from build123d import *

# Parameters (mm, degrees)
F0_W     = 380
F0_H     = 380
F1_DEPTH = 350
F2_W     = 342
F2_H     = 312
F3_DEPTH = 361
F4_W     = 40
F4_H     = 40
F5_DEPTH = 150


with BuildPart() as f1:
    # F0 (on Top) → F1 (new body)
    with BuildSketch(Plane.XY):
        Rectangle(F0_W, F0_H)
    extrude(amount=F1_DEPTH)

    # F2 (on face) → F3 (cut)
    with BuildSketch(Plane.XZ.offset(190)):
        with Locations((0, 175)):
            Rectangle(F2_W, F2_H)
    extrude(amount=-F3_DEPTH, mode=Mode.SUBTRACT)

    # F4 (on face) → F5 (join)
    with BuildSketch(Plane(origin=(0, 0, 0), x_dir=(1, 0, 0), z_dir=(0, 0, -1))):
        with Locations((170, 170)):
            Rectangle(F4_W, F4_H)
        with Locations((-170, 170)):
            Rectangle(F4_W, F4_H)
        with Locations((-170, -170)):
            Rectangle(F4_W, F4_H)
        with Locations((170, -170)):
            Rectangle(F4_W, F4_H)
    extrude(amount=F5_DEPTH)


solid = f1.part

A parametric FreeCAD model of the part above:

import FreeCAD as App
import Part
import Sketcher
from FreeCAD import Vector
Q = App.Units.Quantity

doc = App.newDocument("Part")
body = doc.addObject("PartDesign::Body", "Body")

# Sketch on XY plane
sketch1 = doc.addObject("Sketcher::SketchObject", "Sketch")
body.addObject(sketch1)
sketch1.AttachmentSupport = (doc.XY_Plane, [""])
sketch1.MapMode = "FlatFace"
sketch1.addGeometry([
    Part.LineSegment(Vector(-190, 190, 0), Vector(-190, -190, 0)),
    Part.LineSegment(Vector(-190, -190, 0), Vector(190, -190, 0)),
    Part.LineSegment(Vector(190, -190, 0), Vector(190, 190, 0)),
    Part.LineSegment(Vector(190, 190, 0), Vector(-190, 190, 0)),
], False)
sketch1.addConstraint([
    Sketcher.Constraint("Coincident", 0, 2, 1, 1),
    Sketcher.Constraint("Coincident", 1, 2, 2, 1),
    Sketcher.Constraint("Coincident", 2, 2, 3, 1),
    Sketcher.Constraint("Coincident", 3, 2, 0, 1),
    Sketcher.Constraint("Vertical", 0),
    Sketcher.Constraint("Horizontal", 1),
    Sketcher.Constraint("Vertical", 2),
    Sketcher.Constraint("Horizontal", 3),
    Sketcher.Constraint("Symmetric", 0, 2, 2, 2, -1, 1),
    Sketcher.Constraint("Equal", 3, 0),
    Sketcher.Constraint("DistanceX", 1, 1, 1, 2, Q("380 mm")),
])
pad1 = doc.addObject("PartDesign::Pad", "Pad")
body.addObject(pad1)
pad1.Profile = sketch1
pad1.Length = 350

# Sketch on XZ plane
sketch2 = doc.addObject("Sketcher::SketchObject", "Sketch001")
body.addObject(sketch2)
sketch2.AttachmentSupport = (doc.XZ_Plane, [""])
sketch2.MapMode = "FlatFace"
sketch2.AttachmentOffset = App.Placement(Vector(0, 0, 190), App.Rotation())
sketch2.addGeometry([
    Part.LineSegment(Vector(-171, 331, 0), Vector(-171, 19, 0)),
    Part.LineSegment(Vector(-171, 19, 0), Vector(171, 19, 0)),
    Part.LineSegment(Vector(171, 19, 0), Vector(171, 331, 0)),
    Part.LineSegment(Vector(171, 331, 0), Vector(-171, 331, 0)),
], False)
sketch2.addConstraint([
    Sketcher.Constraint("Coincident", 0, 2, 1, 1),
    Sketcher.Constraint("Coincident", 1, 2, 2, 1),
    Sketcher.Constraint("Coincident", 2, 2, 3, 1),
    Sketcher.Constraint("Coincident", 3, 2, 0, 1),
    Sketcher.Constraint("Vertical", 0),
    Sketcher.Constraint("Horizontal", 1),
    Sketcher.Constraint("Vertical", 2),
    Sketcher.Constraint("Horizontal", 3),
    Sketcher.Constraint("DistanceX", 1, 1, 1, 2, Q("342 mm")),
    Sketcher.Constraint("DistanceY", 0, 2, 0, 1, Q("312 mm")),
    Sketcher.Constraint("DistanceX", 0, 2, -1, 1, Q("171 mm")),
    Sketcher.Constraint("DistanceY", -1, 1, 0, 2, Q("19 mm")),
])
pocket1 = doc.addObject("PartDesign::Pocket", "Pocket")
body.addObject(pocket1)
pocket1.Profile = sketch2
pocket1.Length = 361

# Sketch on XY plane
sketch3 = doc.addObject("Sketcher::SketchObject", "Sketch002")
body.addObject(sketch3)
sketch3.AttachmentSupport = (doc.XY_Plane, [""])
sketch3.MapMode = "FlatFace"
sketch3.addGeometry([
    Part.LineSegment(Vector(150, -190, 0), Vector(150, -150, 0)),  # 0
    Part.LineSegment(Vector(150, -150, 0), Vector(190, -150, 0)),  # 1
    Part.LineSegment(Vector(190, -150, 0), Vector(190, -190, 0)),  # 2
    Part.LineSegment(Vector(190, -190, 0), Vector(150, -190, 0)),  # 3
    Part.LineSegment(Vector(-190, -190, 0), Vector(-190, -150, 0)),  # 4
    Part.LineSegment(Vector(-190, -150, 0), Vector(-150, -150, 0)),  # 5
    Part.LineSegment(Vector(-150, -150, 0), Vector(-150, -190, 0)),  # 6
    Part.LineSegment(Vector(-150, -190, 0), Vector(-190, -190, 0)),  # 7
    Part.LineSegment(Vector(-190, 150, 0), Vector(-190, 190, 0)),  # 8
    Part.LineSegment(Vector(-190, 190, 0), Vector(-150, 190, 0)),  # 9
    Part.LineSegment(Vector(-150, 190, 0), Vector(-150, 150, 0)),  # 10
    Part.LineSegment(Vector(-150, 150, 0), Vector(-190, 150, 0)),  # 11
    Part.LineSegment(Vector(150, 150, 0), Vector(150, 190, 0)),  # 12
    Part.LineSegment(Vector(150, 190, 0), Vector(190, 190, 0)),  # 13
    Part.LineSegment(Vector(190, 190, 0), Vector(190, 150, 0)),  # 14
    Part.LineSegment(Vector(190, 150, 0), Vector(150, 150, 0)),  # 15
], False)
sketch3.addConstraint([
    Sketcher.Constraint("Coincident", 0, 2, 1, 1),
    Sketcher.Constraint("Coincident", 1, 2, 2, 1),
    Sketcher.Constraint("Coincident", 2, 2, 3, 1),
    Sketcher.Constraint("Coincident", 3, 2, 0, 1),
    Sketcher.Constraint("Coincident", 4, 2, 5, 1),
    Sketcher.Constraint("Coincident", 5, 2, 6, 1),
    Sketcher.Constraint("Coincident", 6, 2, 7, 1),
    Sketcher.Constraint("Coincident", 7, 2, 4, 1),
    Sketcher.Constraint("Coincident", 8, 2, 9, 1),
    Sketcher.Constraint("Coincident", 9, 2, 10, 1),
    Sketcher.Constraint("Coincident", 10, 2, 11, 1),
    Sketcher.Constraint("Coincident", 11, 2, 8, 1),
    Sketcher.Constraint("Coincident", 12, 2, 13, 1),
    Sketcher.Constraint("Coincident", 13, 2, 14, 1),
    Sketcher.Constraint("Coincident", 14, 2, 15, 1),
    Sketcher.Constraint("Coincident", 15, 2, 12, 1),
    Sketcher.Constraint("Vertical", 0),
    Sketcher.Constraint("Horizontal", 1),
    Sketcher.Constraint("Vertical", 2),
    Sketcher.Constraint("Horizontal", 3),
    Sketcher.Constraint("Vertical", 4),
    Sketcher.Constraint("Horizontal", 5),
    Sketcher.Constraint("Vertical", 6),
    Sketcher.Constraint("Horizontal", 7),
    Sketcher.Constraint("Vertical", 8),
    Sketcher.Constraint("Horizontal", 9),
    Sketcher.Constraint("Vertical", 10),
    Sketcher.Constraint("Horizontal", 11),
    Sketcher.Constraint("Vertical", 12),
    Sketcher.Constraint("Horizontal", 13),
    Sketcher.Constraint("Vertical", 14),
    Sketcher.Constraint("Horizontal", 15),
    Sketcher.Constraint("Symmetric", 2, 2, 8, 2, -1, 1),
    Sketcher.Constraint("Symmetric", 0, 2, 10, 2, -1, 1),
    Sketcher.Constraint("Symmetric", 6, 2, 12, 2, -1, 1),
    Sketcher.Constraint("Symmetric", 4, 2, 14, 2, -1, 1),
    Sketcher.Constraint("Symmetric", 1, 2, 4, 2, -2),
    Sketcher.Constraint("Symmetric", 3, 2, 6, 2, -2),
    Sketcher.Constraint("Equal", 15, 0),
    Sketcher.Constraint("DistanceX", 1, 1, 1, 2, Q("40 mm")),
    Sketcher.Constraint("DistanceX", -1, 1, 0, 2, Q("150 mm")),
    Sketcher.Constraint("DistanceY", 0, 2, -1, 1, Q("150 mm")),
])
pad2 = doc.addObject("PartDesign::Pad", "Pad001")
body.addObject(pad2)
pad2.Profile = sketch3
pad2.Length = 150
pad2.Reversed = True

doc.recompute()
